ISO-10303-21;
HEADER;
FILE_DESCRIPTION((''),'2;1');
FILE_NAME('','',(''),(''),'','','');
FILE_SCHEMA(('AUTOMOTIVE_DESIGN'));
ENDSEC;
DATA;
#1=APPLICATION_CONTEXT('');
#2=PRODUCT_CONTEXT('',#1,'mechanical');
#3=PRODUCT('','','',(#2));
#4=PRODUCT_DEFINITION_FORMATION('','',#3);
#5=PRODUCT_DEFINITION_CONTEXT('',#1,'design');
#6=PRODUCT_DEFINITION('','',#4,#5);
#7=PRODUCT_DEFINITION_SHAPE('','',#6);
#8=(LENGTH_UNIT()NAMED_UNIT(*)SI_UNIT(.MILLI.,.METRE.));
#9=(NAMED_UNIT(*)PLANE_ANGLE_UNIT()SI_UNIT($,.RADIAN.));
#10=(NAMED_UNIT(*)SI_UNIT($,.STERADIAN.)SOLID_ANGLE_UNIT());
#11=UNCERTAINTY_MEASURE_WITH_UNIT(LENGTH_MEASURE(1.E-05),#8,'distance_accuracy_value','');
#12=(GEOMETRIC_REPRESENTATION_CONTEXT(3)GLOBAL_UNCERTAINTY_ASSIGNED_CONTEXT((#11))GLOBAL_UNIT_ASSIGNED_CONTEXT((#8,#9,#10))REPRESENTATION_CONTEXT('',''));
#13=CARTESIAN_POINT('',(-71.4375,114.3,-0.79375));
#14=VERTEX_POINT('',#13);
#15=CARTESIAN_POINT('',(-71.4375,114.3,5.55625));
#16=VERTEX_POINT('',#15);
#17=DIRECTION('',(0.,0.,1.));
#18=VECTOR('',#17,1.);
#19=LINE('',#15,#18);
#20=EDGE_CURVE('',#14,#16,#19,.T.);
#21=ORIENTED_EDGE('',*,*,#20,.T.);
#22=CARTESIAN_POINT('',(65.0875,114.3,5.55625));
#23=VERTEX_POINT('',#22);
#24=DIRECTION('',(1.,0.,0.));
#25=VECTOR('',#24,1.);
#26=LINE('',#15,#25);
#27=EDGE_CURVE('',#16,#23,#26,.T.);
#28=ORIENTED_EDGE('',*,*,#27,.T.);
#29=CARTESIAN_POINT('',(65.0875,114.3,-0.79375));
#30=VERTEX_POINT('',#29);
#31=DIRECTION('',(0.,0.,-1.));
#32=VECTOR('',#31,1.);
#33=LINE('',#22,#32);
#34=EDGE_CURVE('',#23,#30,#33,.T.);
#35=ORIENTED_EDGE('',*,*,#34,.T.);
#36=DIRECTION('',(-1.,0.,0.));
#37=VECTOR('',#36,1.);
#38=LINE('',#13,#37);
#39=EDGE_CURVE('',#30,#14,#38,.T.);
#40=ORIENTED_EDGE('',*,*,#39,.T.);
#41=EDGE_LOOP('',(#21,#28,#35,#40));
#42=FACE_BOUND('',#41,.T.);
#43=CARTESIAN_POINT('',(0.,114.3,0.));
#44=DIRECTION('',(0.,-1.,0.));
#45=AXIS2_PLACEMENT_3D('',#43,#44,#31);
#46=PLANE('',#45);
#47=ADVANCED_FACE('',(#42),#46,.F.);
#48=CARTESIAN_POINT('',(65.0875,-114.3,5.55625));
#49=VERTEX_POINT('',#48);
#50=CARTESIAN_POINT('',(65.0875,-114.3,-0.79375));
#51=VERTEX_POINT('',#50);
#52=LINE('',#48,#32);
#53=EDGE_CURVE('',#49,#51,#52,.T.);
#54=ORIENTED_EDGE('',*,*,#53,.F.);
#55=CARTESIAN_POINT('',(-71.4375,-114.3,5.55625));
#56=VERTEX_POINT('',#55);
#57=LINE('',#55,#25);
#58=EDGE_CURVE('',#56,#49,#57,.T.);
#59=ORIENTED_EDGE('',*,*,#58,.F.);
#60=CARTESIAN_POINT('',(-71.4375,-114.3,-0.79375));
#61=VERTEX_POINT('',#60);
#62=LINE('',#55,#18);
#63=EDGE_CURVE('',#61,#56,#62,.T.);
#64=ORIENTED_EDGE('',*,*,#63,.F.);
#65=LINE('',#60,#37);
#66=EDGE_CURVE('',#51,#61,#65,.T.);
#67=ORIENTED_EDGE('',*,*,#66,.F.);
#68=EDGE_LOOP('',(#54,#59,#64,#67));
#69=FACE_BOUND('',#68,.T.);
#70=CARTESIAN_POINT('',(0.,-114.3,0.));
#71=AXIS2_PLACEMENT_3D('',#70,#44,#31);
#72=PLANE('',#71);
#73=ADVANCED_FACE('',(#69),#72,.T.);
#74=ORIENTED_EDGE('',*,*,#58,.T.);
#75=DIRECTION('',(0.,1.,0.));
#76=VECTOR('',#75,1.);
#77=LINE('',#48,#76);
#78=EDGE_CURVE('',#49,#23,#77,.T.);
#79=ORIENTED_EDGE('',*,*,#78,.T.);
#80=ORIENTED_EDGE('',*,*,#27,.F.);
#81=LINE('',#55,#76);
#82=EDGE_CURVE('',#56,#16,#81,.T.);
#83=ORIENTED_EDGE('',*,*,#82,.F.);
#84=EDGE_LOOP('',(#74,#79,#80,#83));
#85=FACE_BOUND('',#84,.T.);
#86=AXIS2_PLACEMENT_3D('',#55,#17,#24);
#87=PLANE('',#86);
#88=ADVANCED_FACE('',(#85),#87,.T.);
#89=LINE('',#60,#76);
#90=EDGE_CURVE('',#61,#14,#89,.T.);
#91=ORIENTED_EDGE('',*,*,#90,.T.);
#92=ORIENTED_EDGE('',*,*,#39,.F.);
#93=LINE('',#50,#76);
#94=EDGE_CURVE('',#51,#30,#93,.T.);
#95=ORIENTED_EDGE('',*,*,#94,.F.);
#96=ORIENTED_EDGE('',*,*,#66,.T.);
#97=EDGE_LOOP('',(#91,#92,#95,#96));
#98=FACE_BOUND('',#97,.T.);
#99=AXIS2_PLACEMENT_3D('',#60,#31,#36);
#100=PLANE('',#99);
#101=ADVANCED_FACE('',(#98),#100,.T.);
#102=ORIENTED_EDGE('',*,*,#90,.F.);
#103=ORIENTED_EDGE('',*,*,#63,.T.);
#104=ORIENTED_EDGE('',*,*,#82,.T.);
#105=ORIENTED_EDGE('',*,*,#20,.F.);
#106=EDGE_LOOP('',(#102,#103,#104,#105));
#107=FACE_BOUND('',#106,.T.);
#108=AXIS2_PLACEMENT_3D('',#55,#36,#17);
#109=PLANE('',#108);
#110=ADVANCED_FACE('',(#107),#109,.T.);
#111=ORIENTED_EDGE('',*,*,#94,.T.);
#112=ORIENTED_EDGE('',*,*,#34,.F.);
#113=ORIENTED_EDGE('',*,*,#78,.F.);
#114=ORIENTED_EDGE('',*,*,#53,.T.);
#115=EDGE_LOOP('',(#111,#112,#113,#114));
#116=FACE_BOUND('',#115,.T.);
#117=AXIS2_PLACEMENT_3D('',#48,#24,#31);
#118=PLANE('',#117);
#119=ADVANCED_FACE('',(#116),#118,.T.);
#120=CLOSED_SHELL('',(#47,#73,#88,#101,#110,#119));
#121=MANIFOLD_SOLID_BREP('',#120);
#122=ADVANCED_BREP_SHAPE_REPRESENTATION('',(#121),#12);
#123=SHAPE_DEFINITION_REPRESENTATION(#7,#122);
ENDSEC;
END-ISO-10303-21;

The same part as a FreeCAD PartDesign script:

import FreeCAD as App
import Part
import Sketcher
Q = App.Units.Quantity

doc = App.newDocument("Part")
body = doc.addObject("PartDesign::Body", "Body")

sketch1 = body.newObject("Sketcher::SketchObject", "Sketch")
sketch1.AttachmentSupport = (doc.getObject("XZ_Plane"), [""])
sketch1.MapMode = "FlatFace"
sketch1.addGeometry([
    Part.LineSegment(App.Vector(-71.4375, -0.79375, 0), App.Vector(-71.4375, 5.55625, 0)),
    Part.LineSegment(App.Vector(-71.4375, 5.55625, 0), App.Vector(65.0875, 5.55625, 0)),
    Part.LineSegment(App.Vector(65.0875, 5.55625, 0), App.Vector(65.0875, -0.79375, 0)),
    Part.LineSegment(App.Vector(65.0875, -0.79375, 0), App.Vector(-71.4375, -0.79375, 0)),
], False)
sketch1.addConstraint([
    Sketcher.Constraint("Coincident", 0, 2, 1, 1),
    Sketcher.Constraint("Coincident", 1, 2, 2, 1),
    Sketcher.Constraint("Coincident", 2, 2, 3, 1),
    Sketcher.Constraint("Coincident", 3, 2, 0, 1),
    Sketcher.Constraint("Vertical", 0),
    Sketcher.Constraint("Horizontal", 1),
    Sketcher.Constraint("Vertical", 2),
    Sketcher.Constraint("Horizontal", 3),
    Sketcher.Constraint("DistanceY", 0, 1, 0, 2, Q("0.25 in")),
    Sketcher.Constraint("DistanceX", 1, 1, 1, 2, Q("5.375 in")),
    Sketcher.Constraint("DistanceX", 0, 2, -1, 1, Q("2.8125 in")),
    Sketcher.Constraint("DistanceY", -1, 1, 0, 2, Q("0.21875 in")),
])
pad1 = body.newObject("PartDesign::Pad", "Pad")
pad1.Profile = sketch1
pad1.Type = "TwoLengths"
pad1.Length = Q("4.5 in")
pad1.Length2 = Q("4.5 in")
pad1.Reversed = True

doc.recompute()
